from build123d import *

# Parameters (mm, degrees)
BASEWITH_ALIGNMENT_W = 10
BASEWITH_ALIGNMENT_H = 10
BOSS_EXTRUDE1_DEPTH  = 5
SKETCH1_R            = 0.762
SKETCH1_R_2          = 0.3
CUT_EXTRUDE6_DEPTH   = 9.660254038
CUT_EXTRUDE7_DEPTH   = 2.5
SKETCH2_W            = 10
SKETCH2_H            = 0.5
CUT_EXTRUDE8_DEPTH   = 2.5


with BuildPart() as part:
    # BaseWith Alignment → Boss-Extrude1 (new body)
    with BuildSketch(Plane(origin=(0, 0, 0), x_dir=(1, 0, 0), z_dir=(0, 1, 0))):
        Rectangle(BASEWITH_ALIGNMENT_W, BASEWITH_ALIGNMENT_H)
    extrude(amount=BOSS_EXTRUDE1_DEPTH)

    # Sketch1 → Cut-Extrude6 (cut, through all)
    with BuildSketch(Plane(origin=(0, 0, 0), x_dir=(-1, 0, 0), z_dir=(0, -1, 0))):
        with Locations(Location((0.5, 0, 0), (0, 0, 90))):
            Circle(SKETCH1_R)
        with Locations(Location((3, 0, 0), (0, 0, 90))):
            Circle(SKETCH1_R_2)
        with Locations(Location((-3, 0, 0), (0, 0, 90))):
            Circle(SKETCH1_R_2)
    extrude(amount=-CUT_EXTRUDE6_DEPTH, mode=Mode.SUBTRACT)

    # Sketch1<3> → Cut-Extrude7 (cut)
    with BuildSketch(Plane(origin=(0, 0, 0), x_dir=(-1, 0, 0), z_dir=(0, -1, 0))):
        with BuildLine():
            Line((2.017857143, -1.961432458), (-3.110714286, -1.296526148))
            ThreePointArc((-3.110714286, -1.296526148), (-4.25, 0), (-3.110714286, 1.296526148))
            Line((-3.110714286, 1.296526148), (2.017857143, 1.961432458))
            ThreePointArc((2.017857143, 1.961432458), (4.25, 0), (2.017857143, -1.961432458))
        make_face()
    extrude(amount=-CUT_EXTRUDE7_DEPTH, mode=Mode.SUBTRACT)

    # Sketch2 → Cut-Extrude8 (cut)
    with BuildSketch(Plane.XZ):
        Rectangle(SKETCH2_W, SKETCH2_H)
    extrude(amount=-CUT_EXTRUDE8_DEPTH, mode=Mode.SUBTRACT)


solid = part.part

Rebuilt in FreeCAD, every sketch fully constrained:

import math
import FreeCAD as App
import Part
import Sketcher
Q = App.Units.Quantity

doc = App.newDocument("Part")
body = doc.addObject("PartDesign::Body", "Body")

# Sketch on XZ plane
sketch1 = body.newObject("Sketcher::SketchObject", "Sketch")
sketch1.AttachmentSupport = (doc.getObject("XZ_Plane"), [""])
sketch1.MapMode = "FlatFace"
sketch1.addGeometry([
    Part.LineSegment(App.Vector(-5, -5, 0), App.Vector(-5, 5, 0)),
    Part.LineSegment(App.Vector(-5, 5, 0), App.Vector(5, 5, 0)),
    Part.LineSegment(App.Vector(5, 5, 0), App.Vector(5, -5, 0)),
    Part.LineSegment(App.Vector(5, -5, 0), App.Vector(-5, -5, 0)),
], False)
sketch1.addConstraint([
    Sketcher.Constraint("Coincident", 0, 2, 1, 1),
    Sketcher.Constraint("Coincident", 1, 2, 2, 1),
    Sketcher.Constraint("Coincident", 2, 2, 3, 1),
    Sketcher.Constraint("Coincident", 3, 2, 0, 1),
    Sketcher.Constraint("Vertical", 0),
    Sketcher.Constraint("Horizontal", 1),
    Sketcher.Constraint("Vertical", 2),
    Sketcher.Constraint("Horizontal", 3),
    Sketcher.Constraint("Symmetric", 0, 2, 2, 2, -1, 1),
    Sketcher.Constraint("Equal", 3, 0),
    Sketcher.Constraint("DistanceX", 1, 1, 1, 2, Q("10 mm")),
])
pad1 = body.newObject("PartDesign::Pad", "Pad")
pad1.Profile = sketch1
pad1.Length = 5
pad1.Reversed = True

# Sketch on XZ plane
sketch2 = body.newObject("Sketcher::SketchObject", "Sketch001")
sketch2.AttachmentSupport = (doc.getObject("XZ_Plane"), [""])
sketch2.MapMode = "FlatFace"
sketch2.addGeometry([
    Part.Circle(App.Vector(-0.5, 0, 0), App.Vector(0, 0, 1), 0.76),
    Part.Circle(App.Vector(-3, 0, 0), App.Vector(0, 0, 1), 0.3),
    Part.Circle(App.Vector(3, 0, 0), App.Vector(0, 0, 1), 0.3),
], False)
sketch2.addConstraint([
    Sketcher.Constraint("Equal", 1, 2),
    Sketcher.Constraint("Symmetric", 1, 3, 2, 3, -1, 1),
    Sketcher.Constraint("PointOnObject", 0, 3, -1),
    Sketcher.Constraint("PointOnObject", 1, 3, -1),
    Sketcher.Constraint("Diameter", 1, Q("0.6 mm")),
    Sketcher.Constraint("Diameter", 0, Q("1.524 mm")),
    Sketcher.Constraint("DistanceX", 1, 3, -1, 1, Q("3 mm")),
    Sketcher.Constraint("DistanceX", 0, 3, -1, 1, Q("0.5 mm")),
])
pocket1 = body.newObject("PartDesign::Pocket", "Pocket")
pocket1.Profile = sketch2
pocket1.Type = "ThroughAll"

# Sketch on XZ plane
sketch3 = body.newObject("Sketcher::SketchObject", "Sketch002")
sketch3.AttachmentSupport = (doc.getObject("XZ_Plane"), [""])
sketch3.MapMode = "FlatFace"
sketch3.addGeometry([
    Part.LineSegment(App.Vector(3.1, 1.3, 0), App.Vector(-2, 2, 0)),
    Part.ArcOfCircle(Part.Circle(App.Vector(-2.3, 0, 0), App.Vector(0, 0, 1), 2), math.radians(83), math.radians(277)),
    Part.LineSegment(App.Vector(-2, -2, 0), App.Vector(3.1, -1.3, 0)),
    Part.ArcOfCircle(Part.Circle(App.Vector(2.9, 0, 0), App.Vector(0, 0, 1), 1.3), math.radians(-83), math.radians(83)),
], False)
sketch3.addConstraint([
    Sketcher.Constraint("Tangent", 0, 2, 1, 1),
    Sketcher.Constraint("Tangent", 1, 2, 2, 1),
    Sketcher.Constraint("Tangent", 2, 2, 3, 1),
    Sketcher.Constraint("Tangent", 3, 2, 0, 1),
    Sketcher.Constraint("Symmetric", 0, 2, 1, 2, -1),
    Sketcher.Constraint("Radius", 1, Q("1.977848 mm")),
    Sketcher.Constraint("Radius", 3, Q("1.307377 mm")),
    Sketcher.Constraint("DistanceX", 1, 3, -1, 1, Q("2.272152 mm")),
    Sketcher.Constraint("DistanceX", 0, 2, 3, 3, Q("4.96048 mm")),
])
pocket2 = body.newObject("PartDesign::Pocket", "Pocket001")
pocket2.Profile = sketch3
pocket2.Length = 2.5

# Sketch on XZ plane
sketch4 = body.newObject("Sketcher::SketchObject", "Sketch003")
sketch4.AttachmentSupport = (doc.getObject("XZ_Plane"), [""])
sketch4.MapMode = "FlatFace"
sketch4.addGeometry([
    Part.LineSegment(App.Vector(-5, 0.2, 0), App.Vector(-5, -0.2, 0)),
    Part.LineSegment(App.Vector(-5, -0.2, 0), App.Vector(5, -0.2, 0)),
    Part.LineSegment(App.Vector(5, -0.2, 0), App.Vector(5, 0.2, 0)),
    Part.LineSegment(App.Vector(5, 0.2, 0), App.Vector(-5, 0.2, 0)),
], False)
sketch4.addConstraint([
    Sketcher.Constraint("Coincident", 0, 2, 1, 1),
    Sketcher.Constraint("Coincident", 1, 2, 2, 1),
    Sketcher.Constraint("Coincident", 2, 2, 3, 1),
    Sketcher.Constraint("Coincident", 3, 2, 0, 1),
    Sketcher.Constraint("Vertical", 0),
    Sketcher.Constraint("Horizontal", 1),
    Sketcher.Constraint("Vertical", 2),
    Sketcher.Constraint("Horizontal", 3),
    Sketcher.Constraint("Symmetric", 0, 2, 2, 2, -1, 1),
    Sketcher.Constraint("DistanceX", 1, 1, 1, 2, Q("10 mm")),
    Sketcher.Constraint("DistanceY", 0, 2, 0, 1, Q("0.5 mm")),
])
pocket3 = body.newObject("PartDesign::Pocket", "Pocket002")
pocket3.Profile = sketch4
pocket3.Length = 2.5

doc.recompute()
